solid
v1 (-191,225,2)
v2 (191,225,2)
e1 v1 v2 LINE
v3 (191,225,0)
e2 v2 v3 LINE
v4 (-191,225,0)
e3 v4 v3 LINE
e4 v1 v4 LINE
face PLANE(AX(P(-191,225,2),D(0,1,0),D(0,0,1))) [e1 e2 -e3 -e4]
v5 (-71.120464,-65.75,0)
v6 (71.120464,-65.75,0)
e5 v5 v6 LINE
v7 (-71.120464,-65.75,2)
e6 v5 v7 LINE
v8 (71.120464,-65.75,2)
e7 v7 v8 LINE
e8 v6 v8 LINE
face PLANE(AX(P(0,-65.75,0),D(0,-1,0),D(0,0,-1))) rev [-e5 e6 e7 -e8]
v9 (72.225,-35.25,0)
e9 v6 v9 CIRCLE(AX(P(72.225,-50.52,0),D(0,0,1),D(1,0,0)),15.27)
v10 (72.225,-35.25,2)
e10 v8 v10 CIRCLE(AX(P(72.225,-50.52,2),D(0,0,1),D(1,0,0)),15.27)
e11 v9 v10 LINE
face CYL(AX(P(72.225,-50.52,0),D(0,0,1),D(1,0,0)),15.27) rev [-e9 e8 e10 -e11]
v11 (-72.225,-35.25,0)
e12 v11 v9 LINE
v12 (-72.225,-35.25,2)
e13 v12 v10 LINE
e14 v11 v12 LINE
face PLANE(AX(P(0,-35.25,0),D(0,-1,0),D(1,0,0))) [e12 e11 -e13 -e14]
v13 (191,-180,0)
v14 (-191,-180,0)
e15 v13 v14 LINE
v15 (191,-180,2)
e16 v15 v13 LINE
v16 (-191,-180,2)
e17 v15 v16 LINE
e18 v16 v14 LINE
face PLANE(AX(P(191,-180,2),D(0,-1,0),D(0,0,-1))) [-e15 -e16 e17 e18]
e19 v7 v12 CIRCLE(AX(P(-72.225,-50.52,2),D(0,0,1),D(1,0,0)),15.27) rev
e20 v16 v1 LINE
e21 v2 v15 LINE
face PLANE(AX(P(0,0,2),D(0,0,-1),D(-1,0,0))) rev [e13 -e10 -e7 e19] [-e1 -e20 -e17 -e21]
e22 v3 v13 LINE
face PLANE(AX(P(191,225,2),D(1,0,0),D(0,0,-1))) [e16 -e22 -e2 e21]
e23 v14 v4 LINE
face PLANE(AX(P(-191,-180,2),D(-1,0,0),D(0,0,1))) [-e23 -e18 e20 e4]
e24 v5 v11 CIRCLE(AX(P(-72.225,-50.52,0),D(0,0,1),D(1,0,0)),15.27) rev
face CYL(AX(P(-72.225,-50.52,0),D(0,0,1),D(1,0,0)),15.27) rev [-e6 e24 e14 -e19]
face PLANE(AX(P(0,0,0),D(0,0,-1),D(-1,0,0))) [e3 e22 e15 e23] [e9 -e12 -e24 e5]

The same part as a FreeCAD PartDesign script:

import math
import FreeCAD as App
import Part
import Sketcher
Q = App.Units.Quantity


def add_polygon(sketch, points):
    """Adds a closed chain of lines whose ends are joined by coincident constraints."""
    first, n = sketch.GeometryCount, len(points)
    for a, b in zip(points, points[1:] + points[:1]):
        sketch.addGeometry(Part.LineSegment(App.Vector(*a, 0), App.Vector(*b, 0)), False)
    for i in range(n):
        sketch.addConstraint(Sketcher.Constraint("Coincident", first + i, 2, first + (i + 1) % n, 1))

doc = App.newDocument("Part")
body = doc.addObject("PartDesign::Body", "Body")

sketch1 = doc.addObject("Sketcher::SketchObject", "Sketch")
body.addObject(sketch1)
sketch1.AttachmentSupport = (doc.XY_Plane, [""])
sketch1.MapMode = "FlatFace"
add_polygon(sketch1, [(191, 225), (191, -180), (-191, -180), (-191, 225)])
sketch1.addConstraint([
    Sketcher.Constraint("Vertical", 0),
    Sketcher.Constraint("Horizontal", 1),
    Sketcher.Constraint("Vertical", 2),
    Sketcher.Constraint("Horizontal", 3),
    Sketcher.Constraint("DistanceX", 1, 2, 1, 1, Q("382 mm")),
    Sketcher.Constraint("DistanceY", 0, 2, 0, 1, Q("405 mm")),
    Sketcher.Constraint("DistanceX", -1, 1, 0, 2, Q("191 mm")),
    Sketcher.Constraint("DistanceY", 0, 2, -1, 1, Q("180 mm")),
])
pad1 = doc.addObject("PartDesign::Pad", "Pad")
body.addObject(pad1)
pad1.Profile = sketch1
pad1.Length = 2

sketch2 = doc.addObject("Sketcher::SketchObject", "Sketch001")
body.addObject(sketch2)
sketch2.AttachmentSupport = (doc.XY_Plane, [""])
sketch2.MapMode = "FlatFace"
sketch2.AttachmentOffset = App.Placement(App.Vector(0, 0, 2), App.Rotation())
sketch2.addGeometry([
    Part.LineSegment(App.Vector(72, -35, 0), App.Vector(-72, -35, 0)),
    Part.ArcOfCircle(Part.Circle(App.Vector(-72, -51, 0), App.Vector(0, 0, 1), 15), math.radians(90), math.radians(274)),
    Part.LineSegment(App.Vector(-71, -66, 0), App.Vector(71, -66, 0)),
    Part.ArcOfCircle(Part.Circle(App.Vector(72, -51, 0), App.Vector(0, 0, 1), 15), math.radians(-94), math.radians(90)),
], False)
sketch2.addConstraint([
    Sketcher.Constraint("Tangent", 0, 2, 1, 1),
    Sketcher.Constraint("Coincident", 1, 2, 2, 1),
    Sketcher.Constraint("Coincident", 2, 2, 3, 1),
    Sketcher.Constraint("Tangent", 3, 2, 0, 1),
    Sketcher.Constraint("Horizontal", 0),
    Sketcher.Constraint("Horizontal", 2),
    Sketcher.Constraint("Equal", 1, 3),
    Sketcher.Constraint("Radius", 1, Q("15.27 mm")),
    Sketcher.Constraint("DistanceX", 0, 2, 0, 1, Q("144.45 mm")),
    Sketcher.Constraint("DistanceY", 1, 2, 0, 2, Q("30.5 mm")),
    Sketcher.Constraint("DistanceY", 1, 3, -1, 1, Q("50.52 mm")),
    Sketcher.Constraint("DistanceX", 1, 3, -1, 1, Q("72.225 mm")),
])
pocket1 = doc.addObject("PartDesign::Pocket", "Pocket")
body.addObject(pocket1)
pocket1.Profile = sketch2
pocket1.Type = "ThroughAll"

doc.recompute()
